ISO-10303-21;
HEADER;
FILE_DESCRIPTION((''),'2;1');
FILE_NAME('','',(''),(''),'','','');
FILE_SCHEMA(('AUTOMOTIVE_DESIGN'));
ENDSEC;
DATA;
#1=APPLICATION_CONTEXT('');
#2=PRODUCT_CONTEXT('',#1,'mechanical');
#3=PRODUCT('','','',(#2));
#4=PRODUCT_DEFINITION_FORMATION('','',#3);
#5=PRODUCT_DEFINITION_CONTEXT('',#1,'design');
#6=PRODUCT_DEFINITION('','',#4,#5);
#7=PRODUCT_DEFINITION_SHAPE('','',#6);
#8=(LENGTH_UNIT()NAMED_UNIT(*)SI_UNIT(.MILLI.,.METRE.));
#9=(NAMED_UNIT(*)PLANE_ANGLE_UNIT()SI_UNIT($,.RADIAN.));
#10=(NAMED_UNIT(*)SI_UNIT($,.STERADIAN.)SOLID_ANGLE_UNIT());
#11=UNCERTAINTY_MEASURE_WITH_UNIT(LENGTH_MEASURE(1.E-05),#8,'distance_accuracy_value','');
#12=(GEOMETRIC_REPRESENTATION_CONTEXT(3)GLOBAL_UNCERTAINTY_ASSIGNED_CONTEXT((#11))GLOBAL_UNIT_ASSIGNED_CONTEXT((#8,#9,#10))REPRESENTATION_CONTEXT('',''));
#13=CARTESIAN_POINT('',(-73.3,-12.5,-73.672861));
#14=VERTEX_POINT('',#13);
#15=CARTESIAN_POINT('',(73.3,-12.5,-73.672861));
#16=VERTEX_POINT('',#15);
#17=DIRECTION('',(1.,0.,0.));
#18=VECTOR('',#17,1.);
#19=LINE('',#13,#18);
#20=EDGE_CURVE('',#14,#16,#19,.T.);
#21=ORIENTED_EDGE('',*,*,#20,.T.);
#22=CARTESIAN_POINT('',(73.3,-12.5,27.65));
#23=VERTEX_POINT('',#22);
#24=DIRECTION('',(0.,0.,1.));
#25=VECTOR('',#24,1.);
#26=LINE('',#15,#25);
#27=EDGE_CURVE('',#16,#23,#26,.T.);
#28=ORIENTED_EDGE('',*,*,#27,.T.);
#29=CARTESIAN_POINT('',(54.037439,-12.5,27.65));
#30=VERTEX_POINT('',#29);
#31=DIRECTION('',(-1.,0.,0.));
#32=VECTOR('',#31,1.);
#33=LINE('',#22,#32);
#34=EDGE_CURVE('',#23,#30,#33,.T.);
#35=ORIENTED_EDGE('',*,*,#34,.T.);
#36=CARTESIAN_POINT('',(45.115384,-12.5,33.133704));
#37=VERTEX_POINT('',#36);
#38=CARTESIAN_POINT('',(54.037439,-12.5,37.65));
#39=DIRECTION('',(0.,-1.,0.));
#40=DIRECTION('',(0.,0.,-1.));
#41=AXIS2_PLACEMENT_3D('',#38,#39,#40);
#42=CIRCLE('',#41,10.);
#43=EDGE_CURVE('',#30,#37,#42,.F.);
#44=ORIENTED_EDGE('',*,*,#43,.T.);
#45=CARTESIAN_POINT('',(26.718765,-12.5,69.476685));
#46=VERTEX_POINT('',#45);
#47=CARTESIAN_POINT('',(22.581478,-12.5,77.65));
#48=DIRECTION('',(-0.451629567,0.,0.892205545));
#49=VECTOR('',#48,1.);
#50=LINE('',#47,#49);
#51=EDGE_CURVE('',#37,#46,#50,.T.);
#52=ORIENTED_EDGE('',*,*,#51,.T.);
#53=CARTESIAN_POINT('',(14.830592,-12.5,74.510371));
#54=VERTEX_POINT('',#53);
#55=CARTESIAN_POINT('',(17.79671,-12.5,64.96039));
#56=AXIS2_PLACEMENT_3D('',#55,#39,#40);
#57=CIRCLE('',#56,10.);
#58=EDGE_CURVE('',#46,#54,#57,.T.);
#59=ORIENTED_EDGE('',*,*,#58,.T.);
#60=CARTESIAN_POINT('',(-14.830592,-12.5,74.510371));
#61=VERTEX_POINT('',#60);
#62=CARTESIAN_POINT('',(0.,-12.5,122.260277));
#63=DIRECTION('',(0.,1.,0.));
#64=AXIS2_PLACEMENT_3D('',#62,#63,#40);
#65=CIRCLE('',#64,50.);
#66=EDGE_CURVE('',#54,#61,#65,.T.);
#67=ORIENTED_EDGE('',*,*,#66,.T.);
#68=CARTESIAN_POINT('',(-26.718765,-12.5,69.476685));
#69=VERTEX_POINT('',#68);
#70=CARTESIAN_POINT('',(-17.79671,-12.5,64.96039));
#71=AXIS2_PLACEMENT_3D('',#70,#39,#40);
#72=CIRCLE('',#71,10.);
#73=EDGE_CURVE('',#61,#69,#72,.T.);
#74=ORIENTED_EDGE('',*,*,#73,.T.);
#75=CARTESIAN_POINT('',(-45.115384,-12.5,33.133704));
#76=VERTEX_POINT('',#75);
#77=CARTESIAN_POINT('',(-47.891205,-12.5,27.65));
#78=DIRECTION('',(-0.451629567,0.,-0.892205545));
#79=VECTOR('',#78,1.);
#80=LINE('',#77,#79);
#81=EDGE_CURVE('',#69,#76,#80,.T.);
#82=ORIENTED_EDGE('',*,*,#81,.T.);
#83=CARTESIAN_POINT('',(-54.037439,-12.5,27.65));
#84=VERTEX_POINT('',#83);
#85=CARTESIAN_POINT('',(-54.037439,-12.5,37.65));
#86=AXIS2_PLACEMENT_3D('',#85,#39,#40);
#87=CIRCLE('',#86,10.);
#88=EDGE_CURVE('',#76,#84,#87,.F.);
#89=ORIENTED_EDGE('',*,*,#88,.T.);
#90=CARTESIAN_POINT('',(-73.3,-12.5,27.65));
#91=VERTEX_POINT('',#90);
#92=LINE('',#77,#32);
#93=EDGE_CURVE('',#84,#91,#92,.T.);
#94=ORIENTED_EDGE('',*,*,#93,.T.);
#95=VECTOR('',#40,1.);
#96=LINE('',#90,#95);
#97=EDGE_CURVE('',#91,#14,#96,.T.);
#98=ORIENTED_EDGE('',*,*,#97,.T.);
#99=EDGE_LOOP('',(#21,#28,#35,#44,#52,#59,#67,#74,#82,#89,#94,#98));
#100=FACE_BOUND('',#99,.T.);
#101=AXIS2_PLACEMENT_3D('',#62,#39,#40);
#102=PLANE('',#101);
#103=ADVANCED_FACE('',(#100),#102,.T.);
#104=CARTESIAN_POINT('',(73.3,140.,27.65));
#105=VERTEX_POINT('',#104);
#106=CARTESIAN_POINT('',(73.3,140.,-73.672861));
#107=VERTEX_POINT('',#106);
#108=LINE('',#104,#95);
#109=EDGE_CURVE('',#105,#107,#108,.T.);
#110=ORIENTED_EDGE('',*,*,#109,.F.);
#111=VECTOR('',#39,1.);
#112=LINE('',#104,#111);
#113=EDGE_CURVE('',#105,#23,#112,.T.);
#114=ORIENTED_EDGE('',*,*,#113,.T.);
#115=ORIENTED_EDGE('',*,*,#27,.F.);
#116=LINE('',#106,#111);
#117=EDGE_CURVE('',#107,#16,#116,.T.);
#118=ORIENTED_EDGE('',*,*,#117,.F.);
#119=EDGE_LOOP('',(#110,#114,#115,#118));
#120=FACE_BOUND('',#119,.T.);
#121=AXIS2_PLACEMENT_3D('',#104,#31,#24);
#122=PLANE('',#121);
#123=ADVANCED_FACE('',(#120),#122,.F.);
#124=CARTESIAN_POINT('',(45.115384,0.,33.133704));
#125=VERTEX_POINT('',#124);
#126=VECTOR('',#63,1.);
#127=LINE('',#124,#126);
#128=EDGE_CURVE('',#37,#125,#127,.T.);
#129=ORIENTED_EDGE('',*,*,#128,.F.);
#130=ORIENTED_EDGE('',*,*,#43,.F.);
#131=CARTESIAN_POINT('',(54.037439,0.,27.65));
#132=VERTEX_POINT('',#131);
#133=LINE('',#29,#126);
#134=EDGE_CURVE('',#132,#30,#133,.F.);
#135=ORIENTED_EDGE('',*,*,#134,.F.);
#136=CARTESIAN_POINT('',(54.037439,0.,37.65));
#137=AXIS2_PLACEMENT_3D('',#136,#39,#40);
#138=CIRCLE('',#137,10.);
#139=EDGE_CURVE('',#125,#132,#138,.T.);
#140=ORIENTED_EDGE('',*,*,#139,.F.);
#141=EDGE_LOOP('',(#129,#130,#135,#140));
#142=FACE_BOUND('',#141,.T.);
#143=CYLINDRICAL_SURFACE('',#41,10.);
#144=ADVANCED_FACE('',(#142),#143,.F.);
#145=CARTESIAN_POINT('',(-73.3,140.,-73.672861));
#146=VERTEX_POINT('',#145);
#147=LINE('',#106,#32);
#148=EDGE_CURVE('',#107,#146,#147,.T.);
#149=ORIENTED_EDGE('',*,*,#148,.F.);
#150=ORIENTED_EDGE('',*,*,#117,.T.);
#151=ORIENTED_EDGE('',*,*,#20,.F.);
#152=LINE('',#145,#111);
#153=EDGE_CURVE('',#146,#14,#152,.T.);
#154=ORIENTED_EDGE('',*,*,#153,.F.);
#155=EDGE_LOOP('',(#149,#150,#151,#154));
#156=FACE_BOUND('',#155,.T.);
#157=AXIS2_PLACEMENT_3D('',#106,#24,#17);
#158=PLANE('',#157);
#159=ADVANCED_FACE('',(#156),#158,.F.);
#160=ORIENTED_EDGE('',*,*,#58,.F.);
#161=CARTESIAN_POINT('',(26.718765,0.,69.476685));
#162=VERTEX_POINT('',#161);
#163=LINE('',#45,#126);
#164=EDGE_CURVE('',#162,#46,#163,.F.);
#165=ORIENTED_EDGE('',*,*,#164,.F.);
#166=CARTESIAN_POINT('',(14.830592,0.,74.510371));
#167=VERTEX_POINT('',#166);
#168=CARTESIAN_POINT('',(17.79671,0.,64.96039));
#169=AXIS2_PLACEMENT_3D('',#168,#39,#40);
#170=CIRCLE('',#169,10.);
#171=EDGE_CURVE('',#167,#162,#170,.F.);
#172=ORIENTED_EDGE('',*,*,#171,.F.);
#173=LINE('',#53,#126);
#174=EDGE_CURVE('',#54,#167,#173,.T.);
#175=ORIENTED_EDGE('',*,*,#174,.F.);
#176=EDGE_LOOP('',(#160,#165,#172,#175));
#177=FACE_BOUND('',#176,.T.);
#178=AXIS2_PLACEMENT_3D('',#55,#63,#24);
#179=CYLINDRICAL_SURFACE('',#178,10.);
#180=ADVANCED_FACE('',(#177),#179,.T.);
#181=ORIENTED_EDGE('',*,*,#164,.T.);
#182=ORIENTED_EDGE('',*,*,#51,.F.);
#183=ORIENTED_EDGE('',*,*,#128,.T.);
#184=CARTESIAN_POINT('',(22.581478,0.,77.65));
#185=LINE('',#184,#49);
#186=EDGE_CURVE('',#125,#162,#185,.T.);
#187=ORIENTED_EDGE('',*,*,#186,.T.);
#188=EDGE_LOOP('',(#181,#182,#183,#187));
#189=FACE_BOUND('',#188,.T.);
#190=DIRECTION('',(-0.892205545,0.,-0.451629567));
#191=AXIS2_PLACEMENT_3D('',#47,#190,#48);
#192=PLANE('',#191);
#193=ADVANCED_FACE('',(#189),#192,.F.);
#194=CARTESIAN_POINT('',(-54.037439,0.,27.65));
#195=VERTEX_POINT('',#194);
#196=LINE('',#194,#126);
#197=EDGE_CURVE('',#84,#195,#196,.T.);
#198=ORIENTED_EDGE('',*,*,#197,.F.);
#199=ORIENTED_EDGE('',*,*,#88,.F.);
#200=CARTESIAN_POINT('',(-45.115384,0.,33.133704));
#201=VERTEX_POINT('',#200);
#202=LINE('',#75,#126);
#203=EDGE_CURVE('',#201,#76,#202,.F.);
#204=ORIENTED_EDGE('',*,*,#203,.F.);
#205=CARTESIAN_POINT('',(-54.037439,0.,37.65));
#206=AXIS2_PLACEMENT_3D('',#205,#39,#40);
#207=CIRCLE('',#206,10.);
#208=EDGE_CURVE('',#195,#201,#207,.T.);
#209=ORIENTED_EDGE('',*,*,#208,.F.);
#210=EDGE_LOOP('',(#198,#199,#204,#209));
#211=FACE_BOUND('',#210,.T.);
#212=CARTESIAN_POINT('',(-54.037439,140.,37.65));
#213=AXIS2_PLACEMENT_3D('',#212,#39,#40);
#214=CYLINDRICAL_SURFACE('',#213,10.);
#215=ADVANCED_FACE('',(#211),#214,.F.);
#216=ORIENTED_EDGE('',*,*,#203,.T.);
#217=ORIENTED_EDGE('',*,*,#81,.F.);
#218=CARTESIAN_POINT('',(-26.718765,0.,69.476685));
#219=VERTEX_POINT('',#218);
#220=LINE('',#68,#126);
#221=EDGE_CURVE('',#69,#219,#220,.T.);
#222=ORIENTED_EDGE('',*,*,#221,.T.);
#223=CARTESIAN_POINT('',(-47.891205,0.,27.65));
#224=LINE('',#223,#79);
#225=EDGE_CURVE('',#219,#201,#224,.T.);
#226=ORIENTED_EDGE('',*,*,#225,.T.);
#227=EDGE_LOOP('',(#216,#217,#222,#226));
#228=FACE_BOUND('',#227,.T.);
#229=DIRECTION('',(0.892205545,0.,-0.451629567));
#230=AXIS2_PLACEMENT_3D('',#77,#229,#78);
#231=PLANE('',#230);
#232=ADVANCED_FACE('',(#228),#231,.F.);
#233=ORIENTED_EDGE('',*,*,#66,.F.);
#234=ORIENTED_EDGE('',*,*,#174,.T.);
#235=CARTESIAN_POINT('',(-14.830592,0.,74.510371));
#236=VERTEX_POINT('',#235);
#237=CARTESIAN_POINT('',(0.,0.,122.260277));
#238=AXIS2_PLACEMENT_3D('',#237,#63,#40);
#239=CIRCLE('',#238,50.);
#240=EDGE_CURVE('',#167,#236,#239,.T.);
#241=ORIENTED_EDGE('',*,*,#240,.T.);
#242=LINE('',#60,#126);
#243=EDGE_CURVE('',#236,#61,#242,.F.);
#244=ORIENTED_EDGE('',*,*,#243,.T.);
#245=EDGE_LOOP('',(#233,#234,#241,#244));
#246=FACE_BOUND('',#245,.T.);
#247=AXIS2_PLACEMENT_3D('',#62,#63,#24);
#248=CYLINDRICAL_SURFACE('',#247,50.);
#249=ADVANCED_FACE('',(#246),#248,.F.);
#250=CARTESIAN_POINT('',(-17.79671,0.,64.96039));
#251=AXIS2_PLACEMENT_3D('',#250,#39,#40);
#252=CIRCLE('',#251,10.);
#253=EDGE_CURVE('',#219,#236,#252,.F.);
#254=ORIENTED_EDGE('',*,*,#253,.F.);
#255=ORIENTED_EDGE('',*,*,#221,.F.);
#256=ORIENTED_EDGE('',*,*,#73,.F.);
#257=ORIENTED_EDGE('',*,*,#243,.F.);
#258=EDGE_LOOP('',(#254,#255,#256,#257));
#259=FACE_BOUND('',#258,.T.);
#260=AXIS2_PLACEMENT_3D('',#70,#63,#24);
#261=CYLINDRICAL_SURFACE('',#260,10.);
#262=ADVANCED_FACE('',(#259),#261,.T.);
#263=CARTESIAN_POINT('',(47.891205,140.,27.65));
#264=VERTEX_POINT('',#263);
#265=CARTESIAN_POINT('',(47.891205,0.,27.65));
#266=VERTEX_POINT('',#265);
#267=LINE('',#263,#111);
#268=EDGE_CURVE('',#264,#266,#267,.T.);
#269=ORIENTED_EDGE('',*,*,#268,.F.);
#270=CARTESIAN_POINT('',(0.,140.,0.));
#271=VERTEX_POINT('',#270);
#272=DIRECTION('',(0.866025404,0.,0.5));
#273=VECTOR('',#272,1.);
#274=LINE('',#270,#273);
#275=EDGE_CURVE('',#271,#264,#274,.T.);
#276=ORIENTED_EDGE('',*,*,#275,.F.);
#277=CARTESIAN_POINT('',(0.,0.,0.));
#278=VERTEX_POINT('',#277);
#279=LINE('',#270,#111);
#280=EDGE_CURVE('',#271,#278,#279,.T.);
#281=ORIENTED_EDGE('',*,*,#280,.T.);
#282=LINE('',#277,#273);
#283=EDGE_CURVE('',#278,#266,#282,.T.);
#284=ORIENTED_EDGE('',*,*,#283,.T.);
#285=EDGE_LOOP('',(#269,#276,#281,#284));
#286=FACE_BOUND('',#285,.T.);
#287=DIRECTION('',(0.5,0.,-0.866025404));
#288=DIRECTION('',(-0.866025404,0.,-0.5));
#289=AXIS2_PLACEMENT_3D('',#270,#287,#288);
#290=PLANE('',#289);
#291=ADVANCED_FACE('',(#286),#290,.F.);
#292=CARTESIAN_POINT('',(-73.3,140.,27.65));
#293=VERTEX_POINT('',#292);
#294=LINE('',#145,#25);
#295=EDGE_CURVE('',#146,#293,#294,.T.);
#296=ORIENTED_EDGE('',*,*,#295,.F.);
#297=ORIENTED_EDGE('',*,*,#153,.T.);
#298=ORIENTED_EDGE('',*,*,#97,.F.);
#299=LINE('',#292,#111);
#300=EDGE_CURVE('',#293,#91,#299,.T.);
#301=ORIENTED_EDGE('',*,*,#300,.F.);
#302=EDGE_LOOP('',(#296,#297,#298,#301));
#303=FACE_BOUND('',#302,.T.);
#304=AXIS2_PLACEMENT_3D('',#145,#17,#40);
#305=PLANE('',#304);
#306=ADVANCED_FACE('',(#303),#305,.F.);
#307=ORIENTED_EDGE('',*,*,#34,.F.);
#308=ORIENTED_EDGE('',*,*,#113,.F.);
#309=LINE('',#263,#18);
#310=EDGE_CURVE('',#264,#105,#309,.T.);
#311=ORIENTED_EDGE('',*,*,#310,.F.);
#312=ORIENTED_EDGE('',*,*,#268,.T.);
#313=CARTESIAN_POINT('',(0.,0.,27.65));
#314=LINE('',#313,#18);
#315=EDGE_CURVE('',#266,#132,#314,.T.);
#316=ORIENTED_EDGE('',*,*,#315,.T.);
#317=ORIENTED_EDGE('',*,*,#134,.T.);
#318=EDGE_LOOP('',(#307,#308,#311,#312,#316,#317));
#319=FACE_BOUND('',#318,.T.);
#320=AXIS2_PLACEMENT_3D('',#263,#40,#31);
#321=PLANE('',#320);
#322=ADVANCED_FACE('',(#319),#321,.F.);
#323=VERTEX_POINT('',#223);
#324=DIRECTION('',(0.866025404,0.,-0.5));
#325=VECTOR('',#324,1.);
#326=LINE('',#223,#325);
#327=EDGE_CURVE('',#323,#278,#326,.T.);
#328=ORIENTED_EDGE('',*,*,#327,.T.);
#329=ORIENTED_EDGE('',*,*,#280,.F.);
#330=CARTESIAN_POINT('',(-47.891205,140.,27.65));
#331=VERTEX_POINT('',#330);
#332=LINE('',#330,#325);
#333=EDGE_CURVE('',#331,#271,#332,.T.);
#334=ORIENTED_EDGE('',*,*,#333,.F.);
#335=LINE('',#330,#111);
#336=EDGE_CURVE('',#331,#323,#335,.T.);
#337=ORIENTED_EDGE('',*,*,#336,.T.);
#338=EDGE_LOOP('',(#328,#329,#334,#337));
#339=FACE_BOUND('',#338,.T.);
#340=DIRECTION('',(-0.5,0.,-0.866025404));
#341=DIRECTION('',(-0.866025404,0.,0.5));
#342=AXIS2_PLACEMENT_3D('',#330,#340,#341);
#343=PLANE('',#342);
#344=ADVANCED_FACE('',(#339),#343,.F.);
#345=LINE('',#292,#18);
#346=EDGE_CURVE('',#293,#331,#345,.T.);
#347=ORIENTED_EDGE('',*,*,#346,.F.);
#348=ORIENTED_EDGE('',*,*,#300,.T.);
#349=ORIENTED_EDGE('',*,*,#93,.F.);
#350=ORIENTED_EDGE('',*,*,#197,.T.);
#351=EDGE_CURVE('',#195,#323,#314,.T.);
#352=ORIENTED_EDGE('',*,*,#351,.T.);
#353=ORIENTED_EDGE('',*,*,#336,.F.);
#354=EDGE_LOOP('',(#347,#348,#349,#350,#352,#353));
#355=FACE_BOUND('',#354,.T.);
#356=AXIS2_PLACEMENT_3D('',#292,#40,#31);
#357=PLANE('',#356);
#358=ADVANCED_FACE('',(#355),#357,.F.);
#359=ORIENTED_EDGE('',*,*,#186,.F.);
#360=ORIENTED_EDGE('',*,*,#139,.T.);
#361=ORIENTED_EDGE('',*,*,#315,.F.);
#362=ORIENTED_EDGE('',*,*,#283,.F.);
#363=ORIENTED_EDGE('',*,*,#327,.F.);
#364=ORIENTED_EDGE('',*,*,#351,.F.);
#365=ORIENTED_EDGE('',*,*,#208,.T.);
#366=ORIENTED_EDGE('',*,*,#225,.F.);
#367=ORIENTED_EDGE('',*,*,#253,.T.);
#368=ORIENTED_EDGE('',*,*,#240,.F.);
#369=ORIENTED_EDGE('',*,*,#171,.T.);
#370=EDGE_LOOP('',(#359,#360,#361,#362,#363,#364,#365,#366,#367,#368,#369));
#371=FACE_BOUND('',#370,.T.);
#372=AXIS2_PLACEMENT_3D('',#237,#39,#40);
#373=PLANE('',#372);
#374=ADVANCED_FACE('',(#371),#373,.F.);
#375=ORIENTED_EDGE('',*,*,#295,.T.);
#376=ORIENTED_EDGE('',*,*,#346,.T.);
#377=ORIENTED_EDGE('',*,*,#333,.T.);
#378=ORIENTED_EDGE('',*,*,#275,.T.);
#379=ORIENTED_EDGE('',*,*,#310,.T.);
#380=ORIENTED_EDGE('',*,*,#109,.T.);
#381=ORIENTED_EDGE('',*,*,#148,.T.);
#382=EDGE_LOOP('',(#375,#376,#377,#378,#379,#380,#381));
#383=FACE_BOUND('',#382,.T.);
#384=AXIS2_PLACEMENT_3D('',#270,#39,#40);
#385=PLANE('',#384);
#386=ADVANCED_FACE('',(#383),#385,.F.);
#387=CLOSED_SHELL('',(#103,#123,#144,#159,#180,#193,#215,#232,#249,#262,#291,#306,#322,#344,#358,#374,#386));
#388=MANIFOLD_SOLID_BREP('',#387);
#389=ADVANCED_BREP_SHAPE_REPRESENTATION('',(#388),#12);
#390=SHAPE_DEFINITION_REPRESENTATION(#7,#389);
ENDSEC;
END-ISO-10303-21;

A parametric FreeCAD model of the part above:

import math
import FreeCAD as App
import Part
import Sketcher
Q = App.Units.Quantity


def edges_at(feature, points):
    """Names of the edges that pass closest to the given points."""
    edges = feature.Shape.Edges
    near = lambda p: min(range(len(edges)), key=lambda i: edges[i].distToShape(Part.Vertex(*p))[0])
    return sorted({f"Edge{near(p) + 1}" for p in points})


def add_polygon(sketch, points):
    """Adds a closed chain of lines whose ends are joined by coincident constraints."""
    first, n = sketch.GeometryCount, len(points)
    for a, b in zip(points, points[1:] + points[:1]):
        sketch.addGeometry(Part.LineSegment(App.Vector(*a, 0), App.Vector(*b, 0)), False)
    for i in range(n):
        sketch.addConstraint(Sketcher.Constraint("Coincident", first + i, 2, first + (i + 1) % n, 1))

doc = App.newDocument("Part")
params = doc.addObject("Spreadsheet::Sheet", "Params")
for row, (alias, value) in enumerate([
    ("sketch1_width", "146.6 mm"),
    ("sketch1_length", "55.3 mm"),
    ("pad1_length", "140 mm"),
    ("sketch2_radius", "50 mm"),
    ("sketch2_width", "146.6 mm"),
    ("pad2_length", "12.5 mm"),
    ("fillet_radius", "10 mm"),
], start=1):
    params.set(f"A{row}", alias)
    params.set(f"B{row}", "=" + value)
    params.setAlias(f"B{row}", alias)

body = doc.addObject("PartDesign::Body", "Body")

sketch1 = body.newObject("Sketcher::SketchObject", "Sketch")
sketch1.AttachmentSupport = (doc.getObject("XZ_Plane"), [""])
sketch1.MapMode = "FlatFace"
add_polygon(sketch1, [(0, 0), (48, 28), (73, 28), (73, -74), (-73, -74), (-73, 28), (-48, 28)])
sketch1.addConstraint([
    Sketcher.Constraint("Horizontal", 1),
    Sketcher.Constraint("Vertical", 2),
    Sketcher.Constraint("Horizontal", 3),
    Sketcher.Constraint("Vertical", 4),
    Sketcher.Constraint("Horizontal", 5),
    Sketcher.Constraint("Coincident", 6, 2, -1, 1),
    Sketcher.Constraint("Symmetric", 1, 2, 4, 2, -2),
    Sketcher.Constraint("Equal", 1, 5),
    Sketcher.Constraint("Angle", 0, Q("30 deg")),
    Sketcher.Constraint("DistanceX", 3, 2, 3, 1, 146.6),
    Sketcher.Constraint("Distance", 0, 55.3),
    Sketcher.Constraint("DistanceY", 2, 2, 2, 1, 101.322861),
])
sketch1.setExpression("Constraints[16]", "Params.sketch1_width")
sketch1.setExpression("Constraints[17]", "Params.sketch1_length")
pad1 = body.newObject("PartDesign::Pad", "Pad")
pad1.Profile = sketch1
pad1.setExpression("Length", "Params.pad1_length")
pad1.Reversed = True

sketch2 = body.newObject("Sketcher::SketchObject", "Sketch001")
sketch2.AttachmentSupport = (doc.getObject("XZ_Plane"), [""])
sketch2.MapMode = "FlatFace"
sketch2.addGeometry([
    Part.LineSegment(App.Vector(-23, 78, 0), App.Vector(-48, 28, 0)),
    Part.LineSegment(App.Vector(-48, 28, 0), App.Vector(-73, 28, 0)),
    Part.LineSegment(App.Vector(-73, 28, 0), App.Vector(-73, -74, 0)),
    Part.LineSegment(App.Vector(-73, -74, 0), App.Vector(73, -74, 0)),
    Part.LineSegment(App.Vector(73, -74, 0), App.Vector(73, 28, 0)),
    Part.LineSegment(App.Vector(73, 28, 0), App.Vector(48, 28, 0)),
    Part.LineSegment(App.Vector(48, 28, 0), App.Vector(23, 78, 0)),
    Part.ArcOfCircle(Part.Circle(App.Vector(0, 122, 0), App.Vector(0, 0, 1), 50), math.radians(-117), math.radians(-63)),
], False)
sketch2.addConstraint([
    Sketcher.Constraint("Coincident", 0, 2, 1, 1),
    Sketcher.Constraint("Coincident", 1, 2, 2, 1),
    Sketcher.Constraint("Coincident", 2, 2, 3, 1),
    Sketcher.Constraint("Coincident", 3, 2, 4, 1),
    Sketcher.Constraint("Coincident", 4, 2, 5, 1),
    Sketcher.Constraint("Coincident", 5, 2, 6, 1),
    Sketcher.Constraint("Coincident", 6, 2, 7, 2),
    Sketcher.Constraint("Coincident", 7, 1, 0, 1),
    Sketcher.Constraint("Horizontal", 1),
    Sketcher.Constraint("Vertical", 2),
    Sketcher.Constraint("Horizontal", 3),
    Sketcher.Constraint("Vertical", 4),
    Sketcher.Constraint("Horizontal", 5),
    Sketcher.Constraint("Symmetric", 1, 2, 4, 2, -2),
    Sketcher.Constraint("Symmetric", 6, 2, 7, 1, -2),
    Sketcher.Constraint("Equal", 1, 5),
    Sketcher.Constraint("Radius", 7, 50.0),
    Sketcher.Constraint("DistanceX", 3, 1, 3, 2, 146.6),
    Sketcher.Constraint("DistanceY", 5, 2, 6, 2, 50.0),
    Sketcher.Constraint("DistanceY", -1, 1, 0, 2, 27.65),
    Sketcher.Constraint("Distance", 0, 56.040898),
    Sketcher.Constraint("DistanceY", 2, 2, 2, 1, 101.322861),
    Sketcher.Constraint("DistanceX", 1, 2, 1, 1, 25.408795),
])
sketch2.setExpression("Constraints[16]", "Params.sketch2_radius")
sketch2.setExpression("Constraints[17]", "Params.sketch2_width")
pad2 = body.newObject("PartDesign::Pad", "Pad001")
pad2.Profile = sketch2
pad2.setExpression("Length", "Params.pad2_length")
doc.recompute()

fillet = body.newObject("PartDesign::Fillet", "Fillet")
fillet.Base = (pad2, edges_at(pad2, [
    (-47.891, -6.25, 27.65),
    (47.891, -6.25, 27.65),
    (22.581, -6.25, 77.65),
    (-22.581, -6.25, 77.65),
]))
fillet.setExpression("Radius", "Params.fillet_radius")

doc.recompute()
